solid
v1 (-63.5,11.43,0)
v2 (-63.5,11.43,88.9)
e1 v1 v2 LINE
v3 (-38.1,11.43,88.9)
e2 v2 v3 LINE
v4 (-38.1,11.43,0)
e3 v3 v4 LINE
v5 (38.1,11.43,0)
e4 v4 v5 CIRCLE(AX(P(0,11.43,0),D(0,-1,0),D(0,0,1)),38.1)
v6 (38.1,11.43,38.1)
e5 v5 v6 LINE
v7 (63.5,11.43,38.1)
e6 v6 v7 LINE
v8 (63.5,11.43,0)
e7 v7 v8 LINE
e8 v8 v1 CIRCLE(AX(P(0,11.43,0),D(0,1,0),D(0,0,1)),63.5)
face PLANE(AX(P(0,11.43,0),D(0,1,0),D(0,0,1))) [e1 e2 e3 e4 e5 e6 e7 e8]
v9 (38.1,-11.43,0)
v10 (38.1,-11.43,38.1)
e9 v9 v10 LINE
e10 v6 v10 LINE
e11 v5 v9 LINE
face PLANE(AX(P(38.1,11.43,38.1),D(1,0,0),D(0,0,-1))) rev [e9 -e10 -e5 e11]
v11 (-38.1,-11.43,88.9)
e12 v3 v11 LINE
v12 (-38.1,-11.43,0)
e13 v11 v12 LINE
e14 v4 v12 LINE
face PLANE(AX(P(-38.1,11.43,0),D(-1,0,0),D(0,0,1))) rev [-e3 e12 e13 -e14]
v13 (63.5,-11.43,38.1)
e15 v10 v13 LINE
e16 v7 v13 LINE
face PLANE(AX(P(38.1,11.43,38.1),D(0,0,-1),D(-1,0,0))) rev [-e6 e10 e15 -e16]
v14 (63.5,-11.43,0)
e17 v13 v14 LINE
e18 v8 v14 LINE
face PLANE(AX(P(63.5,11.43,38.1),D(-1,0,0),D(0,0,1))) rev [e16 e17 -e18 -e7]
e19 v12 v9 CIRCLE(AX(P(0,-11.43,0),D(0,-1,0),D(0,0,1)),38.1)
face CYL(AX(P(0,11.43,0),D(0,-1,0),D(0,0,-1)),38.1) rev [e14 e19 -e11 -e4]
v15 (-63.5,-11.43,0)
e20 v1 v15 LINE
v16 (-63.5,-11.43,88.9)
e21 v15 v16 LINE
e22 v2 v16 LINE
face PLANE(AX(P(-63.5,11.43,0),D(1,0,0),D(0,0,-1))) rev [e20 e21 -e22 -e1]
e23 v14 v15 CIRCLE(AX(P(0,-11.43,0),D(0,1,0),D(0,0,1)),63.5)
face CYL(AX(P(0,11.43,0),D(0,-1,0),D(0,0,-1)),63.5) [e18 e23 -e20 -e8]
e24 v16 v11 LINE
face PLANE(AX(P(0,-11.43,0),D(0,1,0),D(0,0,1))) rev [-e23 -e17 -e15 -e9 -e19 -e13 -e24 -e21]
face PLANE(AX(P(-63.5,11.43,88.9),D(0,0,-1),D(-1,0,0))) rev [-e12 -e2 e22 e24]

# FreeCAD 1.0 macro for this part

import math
import FreeCAD as App
import Part
import Sketcher
Q = App.Units.Quantity

doc = App.newDocument("Part")
body = doc.addObject("PartDesign::Body", "Body")

# Sketch on XZ plane
sketch1 = body.newObject("Sketcher::SketchObject", "Sketch")
sketch1.AttachmentSupport = (doc.getObject("XZ_Plane"), [""])
sketch1.MapMode = "FlatFace"
sketch1.addGeometry(Part.LineSegment(App.Vector(-63.5, 0, 0), App.Vector(-63.5, 88.9, 0)), False)
sketch1.addGeometry(Part.LineSegment(App.Vector(-63.5, 88.9, 0), App.Vector(-38.1, 88.9, 0)), False)
sketch1.addGeometry(Part.LineSegment(App.Vector(-38.1, 88.9, 0), App.Vector(-38.1, 0, 0)), False)
sketch1.addGeometry(Part.ArcOfCircle(Part.Circle(App.Vector(0, 0, 0), App.Vector(0, 0, 1), 38.1), math.radians(180), math.radians(360)), False)
sketch1.addGeometry(Part.LineSegment(App.Vector(38.1, 0, 0), App.Vector(38.1, 38.1, 0)), False)
sketch1.addGeometry(Part.LineSegment(App.Vector(38.1, 38.1, 0), App.Vector(63.5, 38.1, 0)), False)
sketch1.addGeometry(Part.LineSegment(App.Vector(63.5, 38.1, 0), App.Vector(63.5, 0, 0)), False)
sketch1.addGeometry(Part.ArcOfCircle(Part.Circle(App.Vector(0, 0, 0), App.Vector(0, 0, 1), 63.5), math.radians(180), math.radians(360)), False)
sketch1.addConstraint(Sketcher.Constraint("Coincident", 0, 2, 1, 1))
sketch1.addConstraint(Sketcher.Constraint("Coincident", 1, 2, 2, 1))
sketch1.addConstraint(Sketcher.Constraint("Tangent", 2, 2, 3, 1))
sketch1.addConstraint(Sketcher.Constraint("Tangent", 3, 2, 4, 1))
sketch1.addConstraint(Sketcher.Constraint("Coincident", 4, 2, 5, 1))
sketch1.addConstraint(Sketcher.Constraint("Coincident", 5, 2, 6, 1))
sketch1.addConstraint(Sketcher.Constraint("Tangent", 6, 2, 7, 2))
sketch1.addConstraint(Sketcher.Constraint("Tangent", 7, 1, 0, 1))
sketch1.addConstraint(Sketcher.Constraint("Vertical", 0))
sketch1.addConstraint(Sketcher.Constraint("Horizontal", 1))
sketch1.addConstraint(Sketcher.Constraint("Vertical", 2))
sketch1.addConstraint(Sketcher.Constraint("Vertical", 4))
sketch1.addConstraint(Sketcher.Constraint("Horizontal", 5))
sketch1.addConstraint(Sketcher.Constraint("Vertical", 6))
sketch1.addConstraint(Sketcher.Constraint("Coincident", 3, 3, -1, 1))
sketch1.addConstraint(Sketcher.Constraint("Coincident", 7, 3, -1, 1))
sketch1.addConstraint(Sketcher.Constraint("Radius", 3, Q("1.5 in")))
sketch1.addConstraint(Sketcher.Constraint("Radius", 7, Q("2.5 in")))
sketch1.addConstraint(Sketcher.Constraint("DistanceY", 0, 1, 0, 2, Q("3.5 in")))
sketch1.addConstraint(Sketcher.Constraint("DistanceY", 4, 1, 4, 2, Q("1.5 in")))
pad1 = body.newObject("PartDesign::Pad", "Pad")
pad1.Profile = sketch1
pad1.Length = Q("0.9 in")
pad1.Midplane = True

doc.recompute()
